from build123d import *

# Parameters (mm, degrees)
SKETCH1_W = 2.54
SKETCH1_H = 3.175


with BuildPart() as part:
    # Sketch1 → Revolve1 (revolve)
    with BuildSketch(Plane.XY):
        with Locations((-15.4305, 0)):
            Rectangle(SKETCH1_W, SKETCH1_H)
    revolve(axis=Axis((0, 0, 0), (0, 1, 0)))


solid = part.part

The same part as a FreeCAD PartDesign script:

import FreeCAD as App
import Part
import Sketcher

V = App.Vector
Q = App.Units.Quantity

doc = App.newDocument("Part")
body = doc.addObject("PartDesign::Body", "Body")

# Sketch on XY plane
sketch1 = body.newObject("Sketcher::SketchObject", "Sketch")
sketch1.AttachmentSupport = (doc.getObject("XY_Plane"), [""])
sketch1.MapMode = "FlatFace"
sketch1.addGeometry([
    Part.LineSegment(V(-16.7005, 1.5875, 0), V(-16.7005, -1.5875, 0)),
    Part.LineSegment(V(-16.7005, -1.5875, 0), V(-14.1605, -1.5875, 0)),
    Part.LineSegment(V(-14.1605, -1.5875, 0), V(-14.1605, 1.5875, 0)),
    Part.LineSegment(V(-14.1605, 1.5875, 0), V(-16.7005, 1.5875, 0)),
], False)
sketch1.addConstraint([
    Sketcher.Constraint("Coincident", 0, 2, 1, 1),
    Sketcher.Constraint("Coincident", 1, 2, 2, 1),
    Sketcher.Constraint("Coincident", 2, 2, 3, 1),
    Sketcher.Constraint("Coincident", 3, 2, 0, 1),
    Sketcher.Constraint("Vertical", 0),
    Sketcher.Constraint("Horizontal", 1),
    Sketcher.Constraint("Vertical", 2),
    Sketcher.Constraint("Horizontal", 3),
    Sketcher.Constraint("DistanceX", 1, 1, 1, 2, Q("0.1 in")),
    Sketcher.Constraint("DistanceY", 0, 2, 0, 1, Q("0.125 in")),
    Sketcher.Constraint("DistanceY", 0, 2, -1, 1, Q("0.0625 in")),
    Sketcher.Constraint("DistanceX", 0, 2, -1, 1, Q("0.6575 in")),
])
revolution = body.newObject("PartDesign::Revolution", "Revolution")
revolution.Profile = sketch1
revolution.ReferenceAxis = (sketch1, ["V_Axis"])
revolution.Angle = 360

doc.recompute()
